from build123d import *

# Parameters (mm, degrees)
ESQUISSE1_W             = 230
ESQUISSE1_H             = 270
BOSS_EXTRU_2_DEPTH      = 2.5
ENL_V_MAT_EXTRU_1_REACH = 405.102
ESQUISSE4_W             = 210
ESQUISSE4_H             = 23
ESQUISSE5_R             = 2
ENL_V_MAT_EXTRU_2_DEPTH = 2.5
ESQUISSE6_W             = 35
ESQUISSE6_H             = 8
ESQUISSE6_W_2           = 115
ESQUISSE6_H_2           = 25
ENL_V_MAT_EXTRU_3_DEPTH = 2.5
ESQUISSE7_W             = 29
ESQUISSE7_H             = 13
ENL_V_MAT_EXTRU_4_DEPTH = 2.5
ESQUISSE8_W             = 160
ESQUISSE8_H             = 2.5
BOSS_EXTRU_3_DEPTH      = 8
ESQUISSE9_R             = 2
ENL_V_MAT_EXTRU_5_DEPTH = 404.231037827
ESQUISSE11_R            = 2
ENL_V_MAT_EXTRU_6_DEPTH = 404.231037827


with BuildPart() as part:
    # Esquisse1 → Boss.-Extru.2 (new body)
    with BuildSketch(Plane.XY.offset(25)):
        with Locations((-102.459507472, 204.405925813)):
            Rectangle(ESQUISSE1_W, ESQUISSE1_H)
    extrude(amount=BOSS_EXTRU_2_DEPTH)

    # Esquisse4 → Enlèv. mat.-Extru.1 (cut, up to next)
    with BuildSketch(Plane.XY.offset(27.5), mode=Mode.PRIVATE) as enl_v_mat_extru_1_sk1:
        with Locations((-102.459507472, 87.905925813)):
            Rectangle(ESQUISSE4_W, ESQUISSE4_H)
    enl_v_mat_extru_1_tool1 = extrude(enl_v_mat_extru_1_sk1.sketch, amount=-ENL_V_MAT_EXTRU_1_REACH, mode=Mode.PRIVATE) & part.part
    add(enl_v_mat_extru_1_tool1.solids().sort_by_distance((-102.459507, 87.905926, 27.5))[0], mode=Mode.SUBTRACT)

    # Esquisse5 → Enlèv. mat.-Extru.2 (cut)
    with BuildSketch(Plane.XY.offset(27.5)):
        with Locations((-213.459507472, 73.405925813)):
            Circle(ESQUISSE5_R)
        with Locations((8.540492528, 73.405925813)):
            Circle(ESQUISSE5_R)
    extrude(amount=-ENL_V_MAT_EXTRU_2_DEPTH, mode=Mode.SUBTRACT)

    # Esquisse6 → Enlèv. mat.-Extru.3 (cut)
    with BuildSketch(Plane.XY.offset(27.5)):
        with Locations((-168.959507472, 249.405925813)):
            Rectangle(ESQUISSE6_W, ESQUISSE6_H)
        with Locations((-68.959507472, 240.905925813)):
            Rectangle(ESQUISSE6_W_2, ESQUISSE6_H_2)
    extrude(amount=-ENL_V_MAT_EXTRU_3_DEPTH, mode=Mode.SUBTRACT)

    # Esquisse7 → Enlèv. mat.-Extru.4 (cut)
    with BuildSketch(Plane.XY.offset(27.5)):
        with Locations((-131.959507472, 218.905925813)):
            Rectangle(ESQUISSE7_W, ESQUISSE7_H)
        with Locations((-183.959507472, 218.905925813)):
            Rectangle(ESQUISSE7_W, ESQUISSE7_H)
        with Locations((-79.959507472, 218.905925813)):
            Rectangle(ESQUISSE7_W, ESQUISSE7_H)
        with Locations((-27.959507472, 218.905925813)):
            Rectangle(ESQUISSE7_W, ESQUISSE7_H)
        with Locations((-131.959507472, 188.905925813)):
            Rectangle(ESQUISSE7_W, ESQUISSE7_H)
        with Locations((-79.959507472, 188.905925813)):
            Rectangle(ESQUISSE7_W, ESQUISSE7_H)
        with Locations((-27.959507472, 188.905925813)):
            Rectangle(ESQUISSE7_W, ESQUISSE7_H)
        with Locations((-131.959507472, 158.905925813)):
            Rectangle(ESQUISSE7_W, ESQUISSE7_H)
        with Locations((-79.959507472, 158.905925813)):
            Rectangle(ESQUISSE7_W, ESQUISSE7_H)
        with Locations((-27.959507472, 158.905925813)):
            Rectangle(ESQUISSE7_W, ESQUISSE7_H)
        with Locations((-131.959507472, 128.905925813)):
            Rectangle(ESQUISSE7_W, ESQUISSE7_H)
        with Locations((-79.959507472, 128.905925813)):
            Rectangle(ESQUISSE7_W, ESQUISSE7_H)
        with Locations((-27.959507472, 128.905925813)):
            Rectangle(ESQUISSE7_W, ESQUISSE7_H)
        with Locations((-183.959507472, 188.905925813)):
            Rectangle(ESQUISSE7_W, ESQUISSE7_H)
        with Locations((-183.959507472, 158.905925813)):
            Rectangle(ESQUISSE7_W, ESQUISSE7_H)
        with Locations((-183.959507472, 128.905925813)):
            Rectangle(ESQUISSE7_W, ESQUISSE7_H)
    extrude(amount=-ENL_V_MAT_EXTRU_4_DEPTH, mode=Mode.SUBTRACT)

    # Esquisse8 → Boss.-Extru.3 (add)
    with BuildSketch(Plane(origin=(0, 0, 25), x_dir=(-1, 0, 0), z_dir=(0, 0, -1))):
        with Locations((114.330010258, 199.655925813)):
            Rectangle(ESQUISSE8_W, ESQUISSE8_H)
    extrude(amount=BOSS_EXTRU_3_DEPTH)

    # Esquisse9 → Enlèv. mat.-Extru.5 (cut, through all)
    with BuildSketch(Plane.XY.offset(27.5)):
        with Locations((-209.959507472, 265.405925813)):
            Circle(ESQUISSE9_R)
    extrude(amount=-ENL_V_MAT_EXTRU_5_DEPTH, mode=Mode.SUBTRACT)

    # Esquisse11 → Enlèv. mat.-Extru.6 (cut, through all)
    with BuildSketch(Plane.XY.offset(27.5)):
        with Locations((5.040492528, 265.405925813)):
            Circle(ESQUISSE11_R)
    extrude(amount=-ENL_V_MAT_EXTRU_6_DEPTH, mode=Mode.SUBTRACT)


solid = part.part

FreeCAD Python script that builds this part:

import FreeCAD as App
import Part
import Sketcher

V = App.Vector


def add_polygon(sketch, points):
    """Adds a closed chain of lines whose ends are joined by coincident constraints."""
    first, n = sketch.GeometryCount, len(points)
    for a, b in zip(points, points[1:] + points[:1]):
        sketch.addGeometry(Part.LineSegment(App.Vector(*a, 0), App.Vector(*b, 0)), False)
    for i in range(n):
        sketch.addConstraint(Sketcher.Constraint("Coincident", first + i, 2, first + (i + 1) % n, 1))

doc = App.newDocument("Part")
body = doc.addObject("PartDesign::Body", "Body")

sketch1 = body.newObject("Sketcher::SketchObject", "Sketch")
sketch1.AttachmentSupport = (doc.getObject("XY_Plane"), [""])
sketch1.MapMode = "FlatFace"
sketch1.AttachmentOffset = App.Placement(V(0, 0, 25), App.Rotation())
add_polygon(sketch1, [(-217, 339), (-217, 69), (13, 69), (13, 339)])
sketch1.addConstraint([
    Sketcher.Constraint("Vertical", 0),
    Sketcher.Constraint("Horizontal", 1),
    Sketcher.Constraint("Vertical", 2),
    Sketcher.Constraint("Horizontal", 3),
    Sketcher.Constraint("DistanceX", 1, 1, 1, 2, 230.0),
    Sketcher.Constraint("DistanceY", 0, 2, 0, 1, 270.0),
    Sketcher.Constraint("DistanceX", 0, 2, -1, 1, 217.459507),
    Sketcher.Constraint("DistanceY", -1, 1, 0, 2, 69.405926),
])
pad1 = body.newObject("PartDesign::Pad", "Pad")
pad1.Profile = sketch1
pad1.Length = 2.5

sketch2 = body.newObject("Sketcher::SketchObject", "Sketch001")
sketch2.AttachmentSupport = (doc.getObject("XY_Plane"), [""])
sketch2.MapMode = "FlatFace"
sketch2.AttachmentOffset = App.Placement(V(0, 0, 27.5), App.Rotation())
add_polygon(sketch2, [(-207, 99), (-207, 76), (3, 76), (3, 99)])
sketch2.addConstraint([
    Sketcher.Constraint("Vertical", 0),
    Sketcher.Constraint("Horizontal", 1),
    Sketcher.Constraint("Vertical", 2),
    Sketcher.Constraint("Horizontal", 3),
    Sketcher.Constraint("DistanceX", 1, 1, 1, 2, 210.0),
    Sketcher.Constraint("DistanceY", 0, 2, 0, 1, 23.0),
    Sketcher.Constraint("DistanceX", 0, 2, -1, 1, 207.459507),
    Sketcher.Constraint("DistanceY", -1, 1, 0, 2, 76.405926),
])
pocket1 = body.newObject("PartDesign::Pocket", "Pocket")
pocket1.Profile = sketch2
pocket1.Type = "UpToFirst"

sketch3 = body.newObject("Sketcher::SketchObject", "Sketch002")
sketch3.AttachmentSupport = (doc.getObject("XY_Plane"), [""])
sketch3.MapMode = "FlatFace"
sketch3.AttachmentOffset = App.Placement(V(0, 0, 27.5), App.Rotation())
sketch3.addGeometry([
    Part.Circle(V(-213.5, 73.4, 0), V(0, 0, 1), 2),
    Part.Circle(V(8.5, 73.4, 0), V(0, 0, 1), 2),
], False)
sketch3.addConstraint([
    Sketcher.Constraint("Equal", 0, 1),
    Sketcher.Constraint("Horizontal", 0, 3, 1, 3),
    Sketcher.Constraint("Diameter", 0, 4.0),
    Sketcher.Constraint("DistanceX", 0, 3, 1, 3, 222.0),
    Sketcher.Constraint("DistanceX", 0, 3, -1, 1, 213.459507),
    Sketcher.Constraint("DistanceY", -1, 1, 0, 3, 73.405926),
])
pocket2 = body.newObject("PartDesign::Pocket", "Pocket001")
pocket2.Profile = sketch3
pocket2.Length = 2.5

sketch4 = body.newObject("Sketcher::SketchObject", "Sketch003")
sketch4.AttachmentSupport = (doc.getObject("XY_Plane"), [""])
sketch4.MapMode = "FlatFace"
sketch4.AttachmentOffset = App.Placement(V(0, 0, 27.5), App.Rotation())
add_polygon(sketch4, [(-186, 253), (-186, 245), (-151, 245), (-151, 253)])
add_polygon(sketch4, [(-126, 253), (-126, 228), (-11, 228), (-11, 253)])
sketch4.addConstraint([
    Sketcher.Constraint("Vertical", 0),
    Sketcher.Constraint("Horizontal", 1),
    Sketcher.Constraint("Vertical", 2),
    Sketcher.Constraint("Horizontal", 3),
    Sketcher.Constraint("Vertical", 4),
    Sketcher.Constraint("Horizontal", 5),
    Sketcher.Constraint("Vertical", 6),
    Sketcher.Constraint("Horizontal", 7),
    Sketcher.Constraint("Horizontal", 3, 2, 6, 2),
    Sketcher.Constraint("DistanceX", 1, 1, 1, 2, 35.0),
    Sketcher.Constraint("DistanceX", 5, 1, 5, 2, 115.0),
    Sketcher.Constraint("DistanceY", 0, 2, 0, 1, 8.0),
    Sketcher.Constraint("DistanceY", 4, 2, 4, 1, 25.0),
    Sketcher.Constraint("DistanceX", 1, 2, 4, 2, 25.0),
    Sketcher.Constraint("DistanceX", 0, 2, -1, 1, 186.459507),
    Sketcher.Constraint("DistanceY", -1, 1, 0, 2, 245.405926),
])
pocket3 = body.newObject("PartDesign::Pocket", "Pocket002")
pocket3.Profile = sketch4
pocket3.Length = 2.5

sketch5 = body.newObject("Sketcher::SketchObject", "Sketch004")
sketch5.AttachmentSupport = (doc.getObject("XY_Plane"), [""])
sketch5.MapMode = "FlatFace"
sketch5.AttachmentOffset = App.Placement(V(0, 0, 27.5), App.Rotation())
add_polygon(sketch5, [(-146, 225), (-146, 212), (-117, 212), (-117, 225)])
add_polygon(sketch5, [(-198, 225), (-198, 212), (-169, 212), (-169, 225)])
add_polygon(sketch5, [(-94, 225), (-94, 212), (-65, 212), (-65, 225)])
add_polygon(sketch5, [(-42, 225), (-42, 212), (-13, 212), (-13, 225)])
add_polygon(sketch5, [(-146, 195), (-146, 182), (-117, 182), (-117, 195)])
add_polygon(sketch5, [(-94, 195), (-94, 182), (-65, 182), (-65, 195)])
add_polygon(sketch5, [(-42, 195), (-42, 182), (-13, 182), (-13, 195)])
add_polygon(sketch5, [(-146, 165), (-146, 152), (-117, 152), (-117, 165)])
add_polygon(sketch5, [(-94, 165), (-94, 152), (-65, 152), (-65, 165)])
add_polygon(sketch5, [(-42, 165), (-42, 152), (-13, 152), (-13, 165)])
add_polygon(sketch5, [(-146, 135), (-146, 122), (-117, 122), (-117, 135)])
add_polygon(sketch5, [(-94, 135), (-94, 122), (-65, 122), (-65, 135)])
add_polygon(sketch5, [(-42, 135), (-42, 122), (-13, 122), (-13, 135)])
add_polygon(sketch5, [(-198, 195), (-198, 182), (-169, 182), (-169, 195)])
add_polygon(sketch5, [(-198, 165), (-198, 152), (-169, 152), (-169, 165)])
add_polygon(sketch5, [(-198, 135), (-198, 122), (-169, 122), (-169, 135)])
sketch5.addConstraint([
    Sketcher.Constraint("Vertical", 0),
    Sketcher.Constraint("Horizontal", 1),
    Sketcher.Constraint("Vertical", 2),
    Sketcher.Constraint("Horizontal", 3),
    Sketcher.Constraint("Vertical", 4),
    Sketcher.Constraint("Horizontal", 5),
    Sketcher.Constraint("Vertical", 6),
    Sketcher.Constraint("Horizontal", 7),
    Sketcher.Constraint("Vertical", 8),
    Sketcher.Constraint("Horizontal", 9),
    Sketcher.Constraint("Vertical", 10),
    Sketcher.Constraint("Horizontal", 11),
    Sketcher.Constraint("Vertical", 12),
    Sketcher.Constraint("Horizontal", 13),
    Sketcher.Constraint("Vertical", 14),
    Sketcher.Constraint("Horizontal", 15),
    Sketcher.Constraint("Vertical", 16),
    Sketcher.Constraint("Horizontal", 17),
    Sketcher.Constraint("Vertical", 18),
    Sketcher.Constraint("Horizontal", 19),
    Sketcher.Constraint("Vertical", 20),
    Sketcher.Constraint("Horizontal", 21),
    Sketcher.Constraint("Vertical", 22),
    Sketcher.Constraint("Horizontal", 23),
    Sketcher.Constraint("Vertical", 24),
    Sketcher.Constraint("Horizontal", 25),
    Sketcher.Constraint("Vertical", 26),
    Sketcher.Constraint("Horizontal", 27),
    Sketcher.Constraint("Vertical", 28),
    Sketcher.Constraint("Horizontal", 29),
    Sketcher.Constraint("Vertical", 30),
    Sketcher.Constraint("Horizontal", 31),
    Sketcher.Constraint("Vertical", 32),
    Sketcher.Constraint("Horizontal", 33),
    Sketcher.Constraint("Vertical", 34),
    Sketcher.Constraint("Horizontal", 35),
    Sketcher.Constraint("Vertical", 36),
    Sketcher.Constraint("Horizontal", 37),
    Sketcher.Constraint("Vertical", 38),
    Sketcher.Constraint("Horizontal", 39),
    Sketcher.Constraint("Vertical", 40),
    Sketcher.Constraint("Horizontal", 41),
    Sketcher.Constraint("Vertical", 42),
    Sketcher.Constraint("Horizontal", 43),
    Sketcher.Constraint("Vertical", 44),
    Sketcher.Constraint("Horizontal", 45),
    Sketcher.Constraint("Vertical", 46),
    Sketcher.Constraint("Horizontal", 47),
    Sketcher.Constraint("Vertical", 48),
    Sketcher.Constraint("Horizontal", 49),
    Sketcher.Constraint("Vertical", 50),
    Sketcher.Constraint("Horizontal", 51),
    Sketcher.Constraint("Vertical", 52),
    Sketcher.Constraint("Horizontal", 53),
    Sketcher.Constraint("Vertical", 54),
    Sketcher.Constraint("Horizontal", 55),
    Sketcher.Constraint("Vertical", 56),
    Sketcher.Constraint("Horizontal", 57),
    Sketcher.Constraint("Vertical", 58),
    Sketcher.Constraint("Horizontal", 59),
    Sketcher.Constraint("Vertical", 60),
    Sketcher.Constraint("Horizontal", 61),
    Sketcher.Constraint("Vertical", 62),
    Sketcher.Constraint("Horizontal", 63),
    Sketcher.Constraint("Horizontal", 1, 2, 4, 2),
    Sketcher.Constraint("Horizontal", 3, 2, 6, 2),
    Sketcher.Constraint("Horizontal", 5, 2, 8, 2),
    Sketcher.Constraint("Horizontal", 7, 2, 10, 2),
    Sketcher.Constraint("Horizontal", 9, 2, 12, 2),
    Sketcher.Constraint("Horizontal", 11, 2, 14, 2),
    Sketcher.Constraint("Horizontal", 17, 2, 20, 2),
    Sketcher.Constraint("Horizontal", 19, 2, 22, 2),
    Sketcher.Constraint("Horizontal", 21, 2, 24, 2),
    Sketcher.Constraint("Horizontal", 23, 2, 26, 2),
    Sketcher.Constraint("Horizontal", 29, 2, 32, 2),
    Sketcher.Constraint("Horizontal", 31, 2, 34, 2),
    Sketcher.Constraint("Horizontal", 33, 2, 36, 2),
    Sketcher.Constraint("Horizontal", 35, 2, 38, 2),
    Sketcher.Constraint("Horizontal", 41, 2, 44, 2),
    Sketcher.Constraint("Horizontal", 43, 2, 46, 2),
    Sketcher.Constraint("Horizontal", 45, 2, 48, 2),
    Sketcher.Constraint("Horizontal", 47, 2, 50, 2),
    Sketcher.Constraint("Horizontal", 25, 2, 52, 2),
    Sketcher.Constraint("Horizontal", 27, 2, 54, 2),
    Sketcher.Constraint("Horizontal", 37, 2, 56, 2),
    Sketcher.Constraint("Horizontal", 39, 2, 58, 2),
    Sketcher.Constraint("Horizontal", 49, 2, 60, 2),
    Sketcher.Constraint("Horizontal", 51, 2, 62, 2),
    Sketcher.Constraint("Vertical", 3, 2, 16, 2),
    Sketcher.Constraint("Vertical", 2, 2, 17, 2),
    Sketcher.Constraint("Vertical", 11, 2, 20, 2),
    Sketcher.Constraint("Vertical", 10, 2, 21, 2),
    Sketcher.Constraint("Vertical", 15, 2, 24, 2),
    Sketcher.Constraint("Vertical", 14, 2, 25, 2),
    Sketcher.Constraint("Vertical", 19, 2, 28, 2),
    Sketcher.Constraint("Vertical", 18, 2, 29, 2),
    Sketcher.Constraint("Vertical", 23, 2, 32, 2),
    Sketcher.Constraint("Vertical", 22, 2, 33, 2),
    Sketcher.Constraint("Vertical", 27, 2, 36, 2),
    Sketcher.Constraint("Vertical", 26, 2, 37, 2),
    Sketcher.Constraint("Vertical", 31, 2, 40, 2),
    Sketcher.Constraint("Vertical", 30, 2, 41, 2),
    Sketcher.Constraint("Vertical", 35, 2, 44, 2),
    Sketcher.Constraint("Vertical", 34, 2, 45, 2),
    Sketcher.Constraint("Vertical", 39, 2, 48, 2),
    Sketcher.Constraint("Vertical", 38, 2, 49, 2),
    Sketcher.Constraint("Vertical", 7, 2, 52, 2),
    Sketcher.Constraint("Vertical", 6, 2, 53, 2),
    Sketcher.Constraint("Vertical", 55, 2, 56, 2),
    Sketcher.Constraint("Vertical", 54, 2, 57, 2),
    Sketcher.Constraint("Vertical", 59, 2, 60, 2),
    Sketcher.Constraint("Vertical", 58, 2, 61, 2),
    Sketcher.Constraint("Equal", 3, 5),
    Sketcher.Constraint("Equal", 7, 9),
    Sketcher.Constraint("Equal", 11, 13),
    Sketcher.Constraint("Equal", 14, 16),
    Sketcher.Constraint("Equal", 26, 28),
    Sketcher.Constraint("Equal", 38, 40),
    Sketcher.Constraint("DistanceX", 1, 1, 1, 2, 29.0),
    Sketcher.Constraint("DistanceY", 0, 2, 0, 1, 13.0),
    Sketcher.Constraint("DistanceX", 0, 2, -1, 1, 146.459507),
    Sketcher.Constraint("DistanceY", -1, 1, 0, 2, 212.405926),
    Sketcher.Constraint("DistanceX", 4, 2, -1, 1, 198.459507),
    Sketcher.Constraint("DistanceX", 8, 2, -1, 1, 94.459507),
    Sketcher.Constraint("DistanceX", 12, 2, -1, 1, 42.459507),
    Sketcher.Constraint("DistanceY", -1, 1, 16, 2, 182.405926),
    Sketcher.Constraint("DistanceY", -1, 1, 28, 2, 152.405926),
    Sketcher.Constraint("DistanceY", -1, 1, 40, 2, 122.405926),
])
pocket4 = body.newObject("PartDesign::Pocket", "Pocket003")
pocket4.Profile = sketch5
pocket4.Length = 2.5

sketch6 = body.newObject("Sketcher::SketchObject", "Sketch005")
sketch6.AttachmentSupport = (doc.getObject("XY_Plane"), [""])
sketch6.MapMode = "FlatFace"
sketch6.AttachmentOffset = App.Placement(V(0, 0, 25), App.Rotation())
add_polygon(sketch6, [(-34.3, 200.9), (-34.3, 198.4), (-194.3, 198.4), (-194.3, 200.9)])
sketch6.addConstraint([
    Sketcher.Constraint("Vertical", 0),
    Sketcher.Constraint("Horizontal", 1),
    Sketcher.Constraint("Vertical", 2),
    Sketcher.Constraint("Horizontal", 3),
    Sketcher.Constraint("DistanceX", 1, 2, 1, 1, 160.0),
    Sketcher.Constraint("DistanceY", 0, 2, 0, 1, 2.5),
    Sketcher.Constraint("DistanceX", 0, 2, -1, 1, 34.33001),
    Sketcher.Constraint("DistanceY", -1, 1, 0, 2, 198.405926),
])
pad2 = body.newObject("PartDesign::Pad", "Pad001")
pad2.Profile = sketch6
pad2.Length = 8
pad2.Reversed = True

sketch7 = body.newObject("Sketcher::SketchObject", "Sketch006")
sketch7.AttachmentSupport = (doc.getObject("XY_Plane"), [""])
sketch7.MapMode = "FlatFace"
sketch7.AttachmentOffset = App.Placement(V(0, 0, 27.5), App.Rotation())
sketch7.addGeometry(Part.Circle(V(-210, 265.4, 0), V(0, 0, 1), 2), False)
sketch7.addConstraint([
    Sketcher.Constraint("Diameter", 0, 4.0),
    Sketcher.Constraint("DistanceX", 0, 3, -1, 1, 209.959507),
    Sketcher.Constraint("DistanceY", -1, 1, 0, 3, 265.405926),
])
pocket5 = body.newObject("PartDesign::Pocket", "Pocket004")
pocket5.Profile = sketch7
pocket5.Type = "ThroughAll"

sketch8 = body.newObject("Sketcher::SketchObject", "Sketch007")
sketch8.AttachmentSupport = (doc.getObject("XY_Plane"), [""])
sketch8.MapMode = "FlatFace"
sketch8.AttachmentOffset = App.Placement(V(0, 0, 27.5), App.Rotation())
sketch8.addGeometry(Part.Circle(V(5, 265.4, 0), V(0, 0, 1), 2), False)
sketch8.addConstraint([
    Sketcher.Constraint("Diameter", 0, 4.0),
    Sketcher.Constraint("DistanceX", -1, 1, 0, 3, 5.040493),
    Sketcher.Constraint("DistanceY", -1, 1, 0, 3, 265.405926),
])
pocket6 = body.newObject("PartDesign::Pocket", "Pocket005")
pocket6.Profile = sketch8
pocket6.Type = "ThroughAll"

doc.recompute()
